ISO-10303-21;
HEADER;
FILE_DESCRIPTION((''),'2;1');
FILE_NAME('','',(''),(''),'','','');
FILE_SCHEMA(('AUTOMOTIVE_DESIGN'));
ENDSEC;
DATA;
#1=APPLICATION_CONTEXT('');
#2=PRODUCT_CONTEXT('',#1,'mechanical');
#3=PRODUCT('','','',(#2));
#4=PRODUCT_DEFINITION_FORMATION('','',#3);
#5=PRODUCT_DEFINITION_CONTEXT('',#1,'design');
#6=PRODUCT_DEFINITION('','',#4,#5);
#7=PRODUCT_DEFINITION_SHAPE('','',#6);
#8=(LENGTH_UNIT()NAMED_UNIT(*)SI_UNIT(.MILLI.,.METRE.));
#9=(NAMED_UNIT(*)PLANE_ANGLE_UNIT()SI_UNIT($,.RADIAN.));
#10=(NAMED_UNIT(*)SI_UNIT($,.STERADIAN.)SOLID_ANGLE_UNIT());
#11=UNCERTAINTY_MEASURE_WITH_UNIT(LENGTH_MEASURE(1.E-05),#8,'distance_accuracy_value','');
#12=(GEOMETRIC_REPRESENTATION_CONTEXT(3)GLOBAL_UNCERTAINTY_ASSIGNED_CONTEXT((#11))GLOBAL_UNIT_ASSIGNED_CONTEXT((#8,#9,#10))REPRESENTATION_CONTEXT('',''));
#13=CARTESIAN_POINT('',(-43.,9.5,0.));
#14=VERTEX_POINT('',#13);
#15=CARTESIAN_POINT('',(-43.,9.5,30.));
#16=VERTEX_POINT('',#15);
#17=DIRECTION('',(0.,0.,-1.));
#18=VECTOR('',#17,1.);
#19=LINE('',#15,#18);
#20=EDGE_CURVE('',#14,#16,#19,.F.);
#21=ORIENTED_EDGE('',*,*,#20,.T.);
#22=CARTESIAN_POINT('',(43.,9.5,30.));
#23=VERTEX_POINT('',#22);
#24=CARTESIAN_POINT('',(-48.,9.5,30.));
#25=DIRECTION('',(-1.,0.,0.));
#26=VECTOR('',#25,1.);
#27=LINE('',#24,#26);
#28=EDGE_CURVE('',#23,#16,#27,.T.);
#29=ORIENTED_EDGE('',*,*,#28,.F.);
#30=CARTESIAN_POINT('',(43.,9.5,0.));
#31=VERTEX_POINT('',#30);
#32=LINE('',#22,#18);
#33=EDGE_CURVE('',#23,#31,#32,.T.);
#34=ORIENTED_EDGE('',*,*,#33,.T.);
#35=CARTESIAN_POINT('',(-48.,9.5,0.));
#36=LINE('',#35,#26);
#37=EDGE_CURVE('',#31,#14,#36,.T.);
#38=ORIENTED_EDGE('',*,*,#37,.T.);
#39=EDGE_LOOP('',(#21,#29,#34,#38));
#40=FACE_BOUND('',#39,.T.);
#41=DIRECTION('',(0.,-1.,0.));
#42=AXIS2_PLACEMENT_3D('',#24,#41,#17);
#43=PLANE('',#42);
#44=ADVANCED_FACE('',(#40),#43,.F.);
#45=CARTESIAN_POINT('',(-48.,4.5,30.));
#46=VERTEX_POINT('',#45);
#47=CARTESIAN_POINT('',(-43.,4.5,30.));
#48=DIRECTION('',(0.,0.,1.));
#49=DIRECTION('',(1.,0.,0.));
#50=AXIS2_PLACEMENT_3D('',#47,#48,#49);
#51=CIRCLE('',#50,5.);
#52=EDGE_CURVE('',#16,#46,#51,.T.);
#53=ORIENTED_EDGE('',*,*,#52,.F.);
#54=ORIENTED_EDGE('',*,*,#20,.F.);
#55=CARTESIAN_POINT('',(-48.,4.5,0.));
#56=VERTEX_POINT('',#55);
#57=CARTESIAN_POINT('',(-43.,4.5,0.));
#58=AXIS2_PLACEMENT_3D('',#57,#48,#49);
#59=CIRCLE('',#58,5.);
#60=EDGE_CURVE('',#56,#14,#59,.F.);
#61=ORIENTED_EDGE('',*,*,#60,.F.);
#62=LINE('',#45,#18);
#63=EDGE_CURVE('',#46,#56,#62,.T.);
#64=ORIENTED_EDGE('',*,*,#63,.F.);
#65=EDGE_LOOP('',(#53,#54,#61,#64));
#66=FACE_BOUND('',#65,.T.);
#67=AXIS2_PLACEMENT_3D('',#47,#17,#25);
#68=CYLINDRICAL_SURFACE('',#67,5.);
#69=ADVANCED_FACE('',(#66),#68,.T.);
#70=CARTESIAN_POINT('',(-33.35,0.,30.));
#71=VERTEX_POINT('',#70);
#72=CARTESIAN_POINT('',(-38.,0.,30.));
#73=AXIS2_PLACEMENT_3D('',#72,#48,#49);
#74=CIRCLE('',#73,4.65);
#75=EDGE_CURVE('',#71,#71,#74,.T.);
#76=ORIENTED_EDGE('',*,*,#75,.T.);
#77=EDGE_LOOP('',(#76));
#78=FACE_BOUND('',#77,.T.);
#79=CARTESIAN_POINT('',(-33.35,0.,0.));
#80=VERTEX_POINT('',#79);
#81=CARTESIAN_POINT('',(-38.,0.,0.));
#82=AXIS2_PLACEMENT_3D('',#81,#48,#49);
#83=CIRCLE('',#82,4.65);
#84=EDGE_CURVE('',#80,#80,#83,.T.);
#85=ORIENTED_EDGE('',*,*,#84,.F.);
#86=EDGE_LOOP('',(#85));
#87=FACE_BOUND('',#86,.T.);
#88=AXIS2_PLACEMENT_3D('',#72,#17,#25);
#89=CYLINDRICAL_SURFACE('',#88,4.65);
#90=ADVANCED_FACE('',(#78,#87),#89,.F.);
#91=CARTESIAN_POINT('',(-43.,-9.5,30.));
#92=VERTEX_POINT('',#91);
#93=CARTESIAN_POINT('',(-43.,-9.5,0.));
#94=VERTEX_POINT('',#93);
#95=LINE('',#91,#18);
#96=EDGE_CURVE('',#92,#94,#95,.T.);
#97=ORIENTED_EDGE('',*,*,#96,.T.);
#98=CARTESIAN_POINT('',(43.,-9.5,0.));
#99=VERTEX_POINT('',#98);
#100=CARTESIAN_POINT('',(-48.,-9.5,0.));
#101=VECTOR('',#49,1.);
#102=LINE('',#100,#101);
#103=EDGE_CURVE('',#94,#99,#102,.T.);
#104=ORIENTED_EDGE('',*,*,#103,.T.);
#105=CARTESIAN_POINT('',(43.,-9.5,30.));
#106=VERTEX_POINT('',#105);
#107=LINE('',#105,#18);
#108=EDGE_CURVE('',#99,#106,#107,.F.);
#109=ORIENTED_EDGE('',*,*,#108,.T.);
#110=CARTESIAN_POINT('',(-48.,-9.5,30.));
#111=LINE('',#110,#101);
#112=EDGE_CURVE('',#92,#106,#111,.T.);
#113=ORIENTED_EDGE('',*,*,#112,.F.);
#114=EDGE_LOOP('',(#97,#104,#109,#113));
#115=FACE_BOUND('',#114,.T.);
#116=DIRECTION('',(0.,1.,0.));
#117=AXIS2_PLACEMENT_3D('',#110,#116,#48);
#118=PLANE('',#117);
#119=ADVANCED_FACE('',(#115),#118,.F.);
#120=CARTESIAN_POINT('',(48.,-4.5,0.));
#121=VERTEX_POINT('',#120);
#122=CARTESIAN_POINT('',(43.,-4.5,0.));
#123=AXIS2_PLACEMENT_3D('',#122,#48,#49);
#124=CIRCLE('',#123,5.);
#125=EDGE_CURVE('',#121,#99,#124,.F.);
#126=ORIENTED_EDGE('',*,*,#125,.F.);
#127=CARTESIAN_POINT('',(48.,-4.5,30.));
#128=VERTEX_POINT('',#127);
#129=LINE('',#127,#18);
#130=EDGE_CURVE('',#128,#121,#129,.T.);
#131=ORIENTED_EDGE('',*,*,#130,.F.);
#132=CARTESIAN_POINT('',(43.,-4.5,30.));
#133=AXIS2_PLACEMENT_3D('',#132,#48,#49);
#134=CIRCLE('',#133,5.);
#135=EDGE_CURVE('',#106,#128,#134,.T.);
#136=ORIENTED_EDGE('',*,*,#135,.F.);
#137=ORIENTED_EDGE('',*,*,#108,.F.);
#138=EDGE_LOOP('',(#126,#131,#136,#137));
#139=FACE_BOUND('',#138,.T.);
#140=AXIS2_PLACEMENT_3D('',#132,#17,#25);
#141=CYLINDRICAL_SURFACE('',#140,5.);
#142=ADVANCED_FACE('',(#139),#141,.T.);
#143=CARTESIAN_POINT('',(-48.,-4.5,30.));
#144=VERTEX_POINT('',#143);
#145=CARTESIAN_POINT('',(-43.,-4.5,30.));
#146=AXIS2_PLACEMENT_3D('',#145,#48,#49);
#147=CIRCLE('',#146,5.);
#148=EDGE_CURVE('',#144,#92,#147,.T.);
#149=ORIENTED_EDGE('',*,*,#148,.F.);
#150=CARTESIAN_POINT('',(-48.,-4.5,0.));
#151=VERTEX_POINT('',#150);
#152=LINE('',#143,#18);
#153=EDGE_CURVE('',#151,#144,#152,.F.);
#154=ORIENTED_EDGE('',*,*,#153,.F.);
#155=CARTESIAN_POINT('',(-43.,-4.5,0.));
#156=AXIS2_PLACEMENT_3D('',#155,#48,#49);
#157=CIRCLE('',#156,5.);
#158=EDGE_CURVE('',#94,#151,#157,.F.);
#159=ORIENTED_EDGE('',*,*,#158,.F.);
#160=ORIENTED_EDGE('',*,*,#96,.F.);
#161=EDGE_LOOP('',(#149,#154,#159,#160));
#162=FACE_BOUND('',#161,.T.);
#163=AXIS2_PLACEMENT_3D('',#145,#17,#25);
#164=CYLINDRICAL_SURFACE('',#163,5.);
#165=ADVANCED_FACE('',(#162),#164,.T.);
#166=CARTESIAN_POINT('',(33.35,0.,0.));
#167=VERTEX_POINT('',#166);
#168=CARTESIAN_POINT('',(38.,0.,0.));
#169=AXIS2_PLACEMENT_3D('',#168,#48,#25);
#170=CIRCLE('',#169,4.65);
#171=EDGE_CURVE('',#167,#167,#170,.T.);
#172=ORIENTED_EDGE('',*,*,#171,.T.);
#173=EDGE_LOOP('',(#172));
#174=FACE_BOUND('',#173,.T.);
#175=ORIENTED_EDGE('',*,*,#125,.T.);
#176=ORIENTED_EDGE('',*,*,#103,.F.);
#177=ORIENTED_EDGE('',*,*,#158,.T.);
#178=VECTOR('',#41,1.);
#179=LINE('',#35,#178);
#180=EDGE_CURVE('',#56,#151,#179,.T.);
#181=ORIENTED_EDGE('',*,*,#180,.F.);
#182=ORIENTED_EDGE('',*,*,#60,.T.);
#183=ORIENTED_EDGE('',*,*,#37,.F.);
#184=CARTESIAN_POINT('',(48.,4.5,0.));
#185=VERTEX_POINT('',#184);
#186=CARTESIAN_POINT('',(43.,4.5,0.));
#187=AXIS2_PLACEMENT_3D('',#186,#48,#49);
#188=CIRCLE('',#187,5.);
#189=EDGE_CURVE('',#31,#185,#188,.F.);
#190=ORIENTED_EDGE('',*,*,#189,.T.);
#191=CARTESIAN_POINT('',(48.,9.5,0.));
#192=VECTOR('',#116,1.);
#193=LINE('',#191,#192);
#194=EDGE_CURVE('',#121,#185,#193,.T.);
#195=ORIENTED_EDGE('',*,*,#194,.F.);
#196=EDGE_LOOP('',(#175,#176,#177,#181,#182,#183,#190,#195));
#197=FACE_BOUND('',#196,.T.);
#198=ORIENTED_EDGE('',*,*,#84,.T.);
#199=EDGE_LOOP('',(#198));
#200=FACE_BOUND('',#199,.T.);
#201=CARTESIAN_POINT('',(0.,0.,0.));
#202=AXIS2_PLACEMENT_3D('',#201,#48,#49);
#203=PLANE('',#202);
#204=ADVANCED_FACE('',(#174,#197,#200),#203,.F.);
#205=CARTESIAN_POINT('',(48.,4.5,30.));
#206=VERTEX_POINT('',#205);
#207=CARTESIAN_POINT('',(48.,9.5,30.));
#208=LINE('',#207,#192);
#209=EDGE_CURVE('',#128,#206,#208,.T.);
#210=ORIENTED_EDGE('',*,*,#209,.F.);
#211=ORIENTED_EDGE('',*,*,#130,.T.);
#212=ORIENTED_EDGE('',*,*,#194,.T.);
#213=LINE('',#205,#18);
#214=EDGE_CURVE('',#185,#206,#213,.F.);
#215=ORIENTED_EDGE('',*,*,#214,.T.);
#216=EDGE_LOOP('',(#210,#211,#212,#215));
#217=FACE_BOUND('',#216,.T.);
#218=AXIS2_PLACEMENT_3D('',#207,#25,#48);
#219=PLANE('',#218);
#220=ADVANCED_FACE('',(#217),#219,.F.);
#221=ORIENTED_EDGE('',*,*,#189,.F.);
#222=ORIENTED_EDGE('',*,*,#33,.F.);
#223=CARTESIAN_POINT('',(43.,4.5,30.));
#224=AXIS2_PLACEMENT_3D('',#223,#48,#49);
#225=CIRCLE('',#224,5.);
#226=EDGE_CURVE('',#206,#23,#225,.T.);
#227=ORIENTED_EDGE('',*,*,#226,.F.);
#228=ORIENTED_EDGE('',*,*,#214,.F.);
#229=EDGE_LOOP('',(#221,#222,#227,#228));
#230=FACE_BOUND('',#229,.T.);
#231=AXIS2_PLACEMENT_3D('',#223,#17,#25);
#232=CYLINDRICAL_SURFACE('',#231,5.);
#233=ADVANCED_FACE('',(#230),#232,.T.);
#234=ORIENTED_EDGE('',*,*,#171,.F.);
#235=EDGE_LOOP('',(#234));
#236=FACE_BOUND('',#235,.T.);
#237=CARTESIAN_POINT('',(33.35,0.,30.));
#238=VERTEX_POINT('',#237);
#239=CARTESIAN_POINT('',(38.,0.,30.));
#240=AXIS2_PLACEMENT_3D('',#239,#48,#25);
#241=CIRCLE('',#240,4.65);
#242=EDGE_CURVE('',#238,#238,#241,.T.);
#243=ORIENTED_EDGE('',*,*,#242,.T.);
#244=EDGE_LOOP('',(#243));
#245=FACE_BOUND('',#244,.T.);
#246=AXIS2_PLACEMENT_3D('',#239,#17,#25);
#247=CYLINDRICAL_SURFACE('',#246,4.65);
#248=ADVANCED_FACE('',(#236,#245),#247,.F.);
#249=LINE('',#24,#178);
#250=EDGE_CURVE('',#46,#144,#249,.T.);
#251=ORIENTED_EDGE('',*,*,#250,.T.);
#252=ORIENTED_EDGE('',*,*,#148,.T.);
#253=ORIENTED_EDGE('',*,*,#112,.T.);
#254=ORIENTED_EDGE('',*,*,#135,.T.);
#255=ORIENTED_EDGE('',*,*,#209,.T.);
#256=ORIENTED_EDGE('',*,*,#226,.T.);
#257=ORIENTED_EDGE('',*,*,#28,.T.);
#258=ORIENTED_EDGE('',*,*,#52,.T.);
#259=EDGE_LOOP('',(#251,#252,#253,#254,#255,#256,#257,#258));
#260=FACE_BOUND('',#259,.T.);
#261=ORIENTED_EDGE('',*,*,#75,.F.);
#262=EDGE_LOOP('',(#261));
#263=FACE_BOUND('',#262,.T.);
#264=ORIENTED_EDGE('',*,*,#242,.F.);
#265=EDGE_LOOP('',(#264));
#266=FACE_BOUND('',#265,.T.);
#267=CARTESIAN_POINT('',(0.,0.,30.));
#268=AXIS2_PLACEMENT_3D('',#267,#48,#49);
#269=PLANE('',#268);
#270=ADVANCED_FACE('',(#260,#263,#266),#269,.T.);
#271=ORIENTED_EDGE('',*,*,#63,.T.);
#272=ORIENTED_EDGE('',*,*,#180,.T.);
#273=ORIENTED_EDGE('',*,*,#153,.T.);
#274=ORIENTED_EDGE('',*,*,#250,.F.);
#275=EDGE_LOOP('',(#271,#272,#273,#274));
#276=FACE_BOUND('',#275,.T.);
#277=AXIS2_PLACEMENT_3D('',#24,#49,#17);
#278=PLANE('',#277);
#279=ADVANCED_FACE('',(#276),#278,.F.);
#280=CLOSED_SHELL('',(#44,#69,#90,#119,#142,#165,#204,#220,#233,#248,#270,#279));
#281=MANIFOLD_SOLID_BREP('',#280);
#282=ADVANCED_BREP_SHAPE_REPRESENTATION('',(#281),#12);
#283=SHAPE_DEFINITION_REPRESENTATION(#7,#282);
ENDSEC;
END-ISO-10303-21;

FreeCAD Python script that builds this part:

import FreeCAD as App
import Part
import Sketcher


def edges_at(feature, points):
    """Names of the edges that pass closest to the given points."""
    edges = feature.Shape.Edges
    near = lambda p: min(range(len(edges)), key=lambda i: edges[i].distToShape(Part.Vertex(*p))[0])
    return sorted({f"Edge{near(p) + 1}" for p in points})

doc = App.newDocument("Part")
params = doc.addObject("Spreadsheet::Sheet", "Params")
for row, (alias, value) in enumerate([
    ("sketch1_diameter", "9.3 mm"),
    ("sketch1_width", "96 mm"),
    ("sketch1_height", "19 mm"),
    ("pad1_length", "30 mm"),
    ("fillet_radius", "5 mm"),
], start=1):
    params.set(f"A{row}", alias)
    params.set(f"B{row}", "=" + value)
    params.setAlias(f"B{row}", alias)

body = doc.addObject("PartDesign::Body", "Body")

# Sketch on XY plane
sketch1 = doc.addObject("Sketcher::SketchObject", "Sketch")
body.addObject(sketch1)
sketch1.AttachmentSupport = (doc.XY_Plane, [""])
sketch1.MapMode = "FlatFace"
sketch1.addGeometry(Part.LineSegment(App.Vector(-48, 9.5, 0), App.Vector(-48, -9.5, 0)), False)
sketch1.addGeometry(Part.LineSegment(App.Vector(-48, -9.5, 0), App.Vector(48, -9.5, 0)), False)
sketch1.addGeometry(Part.LineSegment(App.Vector(48, -9.5, 0), App.Vector(48, 9.5, 0)), False)
sketch1.addGeometry(Part.LineSegment(App.Vector(48, 9.5, 0), App.Vector(-48, 9.5, 0)), False)
sketch1.addGeometry(Part.Circle(App.Vector(-38, 0, 0), App.Vector(0, 0, 1), 4.65), False)
sketch1.addGeometry(Part.Circle(App.Vector(38, 0, 0), App.Vector(0, 0, 1), 4.65), False)
sketch1.addConstraint(Sketcher.Constraint("Coincident", 0, 2, 1, 1))
sketch1.addConstraint(Sketcher.Constraint("Coincident", 1, 2, 2, 1))
sketch1.addConstraint(Sketcher.Constraint("Coincident", 2, 2, 3, 1))
sketch1.addConstraint(Sketcher.Constraint("Coincident", 3, 2, 0, 1))
sketch1.addConstraint(Sketcher.Constraint("Vertical", 0))
sketch1.addConstraint(Sketcher.Constraint("Horizontal", 1))
sketch1.addConstraint(Sketcher.Constraint("Vertical", 2))
sketch1.addConstraint(Sketcher.Constraint("Horizontal", 3))
sketch1.addConstraint(Sketcher.Constraint("Equal", 4, 5))
sketch1.addConstraint(Sketcher.Constraint("Symmetric", 4, 3, 5, 3, -1, 1))
sketch1.addConstraint(Sketcher.Constraint("Symmetric", 0, 2, 2, 2, -1, 1))
sketch1.addConstraint(Sketcher.Constraint("PointOnObject", 4, 3, -1))
sketch1.addConstraint(Sketcher.Constraint("Diameter", 4, 9.3))
sketch1.addConstraint(Sketcher.Constraint("DistanceX", 1, 1, 1, 2, 96.0))
sketch1.addConstraint(Sketcher.Constraint("DistanceY", 0, 2, 0, 1, 19.0))
sketch1.addConstraint(Sketcher.Constraint("DistanceX", 4, 3, -1, 1, 38.0))
sketch1.setExpression("Constraints[12]", "Params.sketch1_diameter")
sketch1.setExpression("Constraints[13]", "Params.sketch1_width")
sketch1.setExpression("Constraints[14]", "Params.sketch1_height")
pad1 = doc.addObject("PartDesign::Pad", "Pad")
body.addObject(pad1)
pad1.Profile = sketch1
pad1.setExpression("Length", "Params.pad1_length")
doc.recompute()

fillet = doc.addObject("PartDesign::Fillet", "Fillet")
body.addObject(fillet)
fillet.Base = (pad1, edges_at(pad1, [
    (48, -9.5, 15),
    (-48, -9.5, 15),
    (-48, 9.5, 15),
    (48, 9.5, 15),
]))
fillet.setExpression("Radius", "Params.fillet_radius")

doc.recompute()
